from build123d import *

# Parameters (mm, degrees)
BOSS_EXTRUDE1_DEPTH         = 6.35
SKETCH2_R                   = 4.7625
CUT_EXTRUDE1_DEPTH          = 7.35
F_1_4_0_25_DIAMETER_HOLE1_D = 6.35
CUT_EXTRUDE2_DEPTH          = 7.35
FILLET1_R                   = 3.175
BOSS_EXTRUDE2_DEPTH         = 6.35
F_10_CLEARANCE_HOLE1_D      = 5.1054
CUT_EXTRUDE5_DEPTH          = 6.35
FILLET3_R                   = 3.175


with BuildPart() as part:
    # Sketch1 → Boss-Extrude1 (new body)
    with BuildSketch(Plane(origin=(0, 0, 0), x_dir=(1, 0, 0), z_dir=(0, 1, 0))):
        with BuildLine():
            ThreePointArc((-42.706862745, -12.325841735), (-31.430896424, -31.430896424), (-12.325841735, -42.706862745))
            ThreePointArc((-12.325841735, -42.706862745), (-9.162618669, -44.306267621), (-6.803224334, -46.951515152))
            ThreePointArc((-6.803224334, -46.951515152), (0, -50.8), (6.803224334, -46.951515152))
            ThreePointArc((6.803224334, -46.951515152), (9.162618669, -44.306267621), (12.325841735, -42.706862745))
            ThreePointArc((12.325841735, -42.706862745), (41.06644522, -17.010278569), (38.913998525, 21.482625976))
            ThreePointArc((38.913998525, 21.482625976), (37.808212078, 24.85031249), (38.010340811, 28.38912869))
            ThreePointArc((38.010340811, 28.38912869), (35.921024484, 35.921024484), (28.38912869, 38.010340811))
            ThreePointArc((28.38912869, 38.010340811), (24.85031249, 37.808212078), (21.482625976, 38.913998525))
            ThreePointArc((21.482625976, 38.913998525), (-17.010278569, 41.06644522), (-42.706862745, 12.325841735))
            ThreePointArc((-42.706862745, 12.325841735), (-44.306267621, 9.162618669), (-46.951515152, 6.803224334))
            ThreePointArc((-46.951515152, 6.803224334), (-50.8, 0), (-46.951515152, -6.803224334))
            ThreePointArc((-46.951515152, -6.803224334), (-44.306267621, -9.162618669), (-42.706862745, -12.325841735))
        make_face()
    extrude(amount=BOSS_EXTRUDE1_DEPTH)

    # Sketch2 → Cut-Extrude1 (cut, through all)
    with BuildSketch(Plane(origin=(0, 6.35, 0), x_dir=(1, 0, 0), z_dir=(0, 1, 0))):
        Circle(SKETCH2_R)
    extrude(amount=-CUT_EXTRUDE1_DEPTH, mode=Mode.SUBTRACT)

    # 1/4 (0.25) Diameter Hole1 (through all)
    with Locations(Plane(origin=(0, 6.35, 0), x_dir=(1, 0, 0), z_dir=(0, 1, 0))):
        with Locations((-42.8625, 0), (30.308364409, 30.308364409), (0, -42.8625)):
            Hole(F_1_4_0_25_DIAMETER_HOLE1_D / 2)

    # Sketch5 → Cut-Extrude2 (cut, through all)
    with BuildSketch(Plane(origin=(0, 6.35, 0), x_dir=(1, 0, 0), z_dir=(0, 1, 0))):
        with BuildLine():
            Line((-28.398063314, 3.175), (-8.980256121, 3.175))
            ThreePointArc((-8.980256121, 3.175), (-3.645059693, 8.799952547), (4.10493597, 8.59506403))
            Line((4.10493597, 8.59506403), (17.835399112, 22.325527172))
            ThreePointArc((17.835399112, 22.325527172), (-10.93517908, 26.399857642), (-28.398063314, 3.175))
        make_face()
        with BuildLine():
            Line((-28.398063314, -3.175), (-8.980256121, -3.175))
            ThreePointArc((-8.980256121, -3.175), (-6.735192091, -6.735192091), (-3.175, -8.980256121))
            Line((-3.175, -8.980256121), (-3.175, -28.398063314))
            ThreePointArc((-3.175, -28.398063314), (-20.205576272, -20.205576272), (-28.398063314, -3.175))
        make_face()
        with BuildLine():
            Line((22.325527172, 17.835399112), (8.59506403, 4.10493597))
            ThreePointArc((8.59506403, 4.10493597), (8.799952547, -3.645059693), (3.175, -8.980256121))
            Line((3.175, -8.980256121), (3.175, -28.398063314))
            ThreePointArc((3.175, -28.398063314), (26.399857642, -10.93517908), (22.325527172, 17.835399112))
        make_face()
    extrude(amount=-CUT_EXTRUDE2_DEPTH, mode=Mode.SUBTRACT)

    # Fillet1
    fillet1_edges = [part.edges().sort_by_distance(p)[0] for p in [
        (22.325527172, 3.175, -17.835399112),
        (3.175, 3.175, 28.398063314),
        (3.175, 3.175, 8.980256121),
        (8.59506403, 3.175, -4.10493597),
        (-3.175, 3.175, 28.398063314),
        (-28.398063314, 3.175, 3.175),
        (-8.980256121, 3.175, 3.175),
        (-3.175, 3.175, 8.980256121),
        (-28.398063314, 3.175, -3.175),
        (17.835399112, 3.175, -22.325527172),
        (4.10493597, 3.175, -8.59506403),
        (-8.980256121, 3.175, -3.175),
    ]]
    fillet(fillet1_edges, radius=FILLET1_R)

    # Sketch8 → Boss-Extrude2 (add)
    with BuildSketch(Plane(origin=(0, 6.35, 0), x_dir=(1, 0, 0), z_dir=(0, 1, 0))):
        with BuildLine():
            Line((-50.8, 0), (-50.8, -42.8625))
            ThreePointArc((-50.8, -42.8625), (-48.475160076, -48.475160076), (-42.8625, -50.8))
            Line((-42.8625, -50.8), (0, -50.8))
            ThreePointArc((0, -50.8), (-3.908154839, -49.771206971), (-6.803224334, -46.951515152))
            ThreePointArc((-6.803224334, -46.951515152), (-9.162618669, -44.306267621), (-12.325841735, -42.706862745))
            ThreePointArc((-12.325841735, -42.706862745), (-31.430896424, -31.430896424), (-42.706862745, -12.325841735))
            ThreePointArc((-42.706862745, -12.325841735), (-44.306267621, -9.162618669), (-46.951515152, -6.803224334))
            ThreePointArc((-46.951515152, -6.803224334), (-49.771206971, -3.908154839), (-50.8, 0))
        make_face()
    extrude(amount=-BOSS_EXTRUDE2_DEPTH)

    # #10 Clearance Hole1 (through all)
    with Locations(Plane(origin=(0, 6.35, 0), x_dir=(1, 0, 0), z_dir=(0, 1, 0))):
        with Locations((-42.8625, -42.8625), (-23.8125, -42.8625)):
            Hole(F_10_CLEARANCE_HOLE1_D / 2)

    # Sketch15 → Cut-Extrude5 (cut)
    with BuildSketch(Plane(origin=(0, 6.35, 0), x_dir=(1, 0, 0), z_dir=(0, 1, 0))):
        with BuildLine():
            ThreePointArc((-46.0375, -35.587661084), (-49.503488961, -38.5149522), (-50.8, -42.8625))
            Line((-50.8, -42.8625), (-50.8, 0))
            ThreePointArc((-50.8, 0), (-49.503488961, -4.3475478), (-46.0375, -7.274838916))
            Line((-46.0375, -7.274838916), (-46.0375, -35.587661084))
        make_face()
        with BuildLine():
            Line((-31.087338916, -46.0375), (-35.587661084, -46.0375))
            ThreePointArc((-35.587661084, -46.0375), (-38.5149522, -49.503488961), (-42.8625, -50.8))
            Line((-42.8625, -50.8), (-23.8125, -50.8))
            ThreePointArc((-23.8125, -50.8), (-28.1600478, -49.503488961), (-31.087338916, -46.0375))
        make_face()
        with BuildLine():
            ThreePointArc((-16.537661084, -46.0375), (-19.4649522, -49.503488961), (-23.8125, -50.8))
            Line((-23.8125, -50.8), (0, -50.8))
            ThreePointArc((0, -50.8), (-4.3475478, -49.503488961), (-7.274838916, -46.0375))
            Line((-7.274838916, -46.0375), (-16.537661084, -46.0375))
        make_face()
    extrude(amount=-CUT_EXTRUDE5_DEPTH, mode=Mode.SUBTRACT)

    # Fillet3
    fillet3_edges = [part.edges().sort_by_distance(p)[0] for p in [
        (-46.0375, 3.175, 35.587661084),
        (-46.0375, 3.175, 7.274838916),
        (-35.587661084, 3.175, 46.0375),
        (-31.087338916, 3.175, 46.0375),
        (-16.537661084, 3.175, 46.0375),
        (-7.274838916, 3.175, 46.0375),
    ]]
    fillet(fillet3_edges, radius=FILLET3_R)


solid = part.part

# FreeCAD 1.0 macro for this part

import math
import FreeCAD as App
import Part
import Sketcher
Q = App.Units.Quantity


def edges_at(feature, points):
    """Names of the edges that pass closest to the given points."""
    edges = feature.Shape.Edges
    near = lambda p: min(range(len(edges)), key=lambda i: edges[i].distToShape(Part.Vertex(*p))[0])
    return sorted({f"Edge{near(p) + 1}" for p in points})

doc = App.newDocument("Part")
body = doc.addObject("PartDesign::Body", "Body")

# Sketch on XZ plane
sketch1 = body.newObject("Sketcher::SketchObject", "Sketch")
sketch1.AttachmentSupport = (doc.getObject("XZ_Plane"), [""])
sketch1.MapMode = "FlatFace"
sketch1.addGeometry([
    Part.ArcOfCircle(Part.Circle(App.Vector(0, 0, 0), App.Vector(0, 0, 1), 44), math.radians(106), math.radians(164)),  # 0
    Part.ArcOfCircle(Part.Circle(App.Vector(-15, 52, 0), App.Vector(0, 0, 1), 10), math.radians(-74), math.radians(-31)),  # 1
    Part.ArcOfCircle(Part.Circle(App.Vector(0, 43, 0), App.Vector(0, 0, 1), 8), math.radians(31), math.radians(149)),  # 2
    Part.ArcOfCircle(Part.Circle(App.Vector(15, 52, 0), App.Vector(0, 0, 1), 10), math.radians(-149), math.radians(-106)),  # 3
    Part.ArcOfCircle(Part.Circle(App.Vector(0, 0, 0), App.Vector(0, 0, 1), 44), math.radians(-29), math.radians(74)),  # 4
    Part.ArcOfCircle(Part.Circle(App.Vector(47, -26, 0), App.Vector(0, 0, 1), 10), math.radians(151), math.radians(194)),  # 5
    Part.ArcOfCircle(Part.Circle(App.Vector(30, -30, 0), App.Vector(0, 0, 1), 8), math.radians(-104), math.radians(14)),  # 6
    Part.ArcOfCircle(Part.Circle(App.Vector(26, -47, 0), App.Vector(0, 0, 1), 10), math.radians(76), math.radians(119)),  # 7
    Part.ArcOfCircle(Part.Circle(App.Vector(0, 0, 0), App.Vector(0, 0, 1), 44), math.radians(-164), math.radians(-61)),  # 8
    Part.ArcOfCircle(Part.Circle(App.Vector(-52, -15, 0), App.Vector(0, 0, 1), 10), math.radians(16), math.radians(59)),  # 9
    Part.ArcOfCircle(Part.Circle(App.Vector(-43, 0, 0), App.Vector(0, 0, 1), 8), math.radians(121), math.radians(239)),  # 10
    Part.ArcOfCircle(Part.Circle(App.Vector(-52, 15, 0), App.Vector(0, 0, 1), 10), math.radians(-59), math.radians(-16)),  # 11
], False)
sketch1.addConstraint([
    Sketcher.Constraint("Tangent", 0, 1, 1, 1),
    Sketcher.Constraint("Tangent", 1, 2, 2, 2),
    Sketcher.Constraint("Tangent", 2, 1, 3, 1),
    Sketcher.Constraint("Tangent", 3, 2, 4, 2),
    Sketcher.Constraint("Tangent", 4, 1, 5, 1),
    Sketcher.Constraint("Tangent", 5, 2, 6, 2),
    Sketcher.Constraint("Tangent", 6, 1, 7, 1),
    Sketcher.Constraint("Tangent", 7, 2, 8, 2),
    Sketcher.Constraint("Tangent", 8, 1, 9, 1),
    Sketcher.Constraint("Tangent", 9, 2, 10, 2),
    Sketcher.Constraint("Tangent", 10, 1, 11, 1),
    Sketcher.Constraint("Tangent", 11, 2, 0, 2),
    Sketcher.Constraint("Coincident", 0, 3, -1, 1),
    Sketcher.Constraint("Coincident", 4, 3, -1, 1),
    Sketcher.Constraint("Coincident", 8, 3, -1, 1),
    Sketcher.Constraint("Equal", 1, 3),
    Sketcher.Constraint("Equal", 0, 4),
    Sketcher.Constraint("Equal", 3, 5),
    Sketcher.Constraint("Equal", 2, 6),
    Sketcher.Constraint("Equal", 5, 7),
    Sketcher.Constraint("Equal", 4, 8),
    Sketcher.Constraint("Equal", 7, 9),
    Sketcher.Constraint("Equal", 6, 10),
    Sketcher.Constraint("Equal", 9, 11),
    Sketcher.Constraint("PointOnObject", 2, 3, -2),
    Sketcher.Constraint("PointOnObject", 10, 3, -1),
    Sketcher.Constraint("Radius", 0, Q("1.75 in")),
    Sketcher.Constraint("Radius", 1, Q("0.375 in")),
    Sketcher.Constraint("Radius", 2, Q("0.3125 in")),
    Sketcher.Constraint("DistanceY", -1, 1, 2, 3, Q("1.6875 in")),
    Sketcher.Constraint("DistanceX", 10, 3, -1, 1, Q("1.6875 in")),
    Sketcher.Constraint("DistanceX", -1, 1, 4, 1, Q("38.913999 mm")),
    Sketcher.Constraint("DistanceY", 7, 2, -1, 1, Q("38.913999 mm")),
])
pad1 = body.newObject("PartDesign::Pad", "Pad")
pad1.Profile = sketch1
pad1.Length = Q("0.25 in")
pad1.Reversed = True

# Sketch on XZ plane
sketch2 = body.newObject("Sketcher::SketchObject", "Sketch001")
sketch2.AttachmentSupport = (doc.getObject("XZ_Plane"), [""])
sketch2.MapMode = "FlatFace"
sketch2.AttachmentOffset = App.Placement(App.Vector(0, 0, -0.25 * 25.4), App.Rotation())
sketch2.addGeometry(Part.Circle(App.Vector(0, 0, 0), App.Vector(0, 0, 1), 4.8), False)
sketch2.addConstraint([
    Sketcher.Constraint("Coincident", 0, 3, -1, 1),
    Sketcher.Constraint("Diameter", 0, Q("0.375 in")),
])
pocket1 = body.newObject("PartDesign::Pocket", "Pocket")
pocket1.Profile = sketch2
pocket1.Type = "ThroughAll"
pocket1.Reversed = True

# Sketch on XZ plane
sketch3 = body.newObject("Sketcher::SketchObject", "Sketch002")
sketch3.AttachmentSupport = (doc.getObject("XZ_Plane"), [""])
sketch3.MapMode = "FlatFace"
sketch3.AttachmentOffset = App.Placement(App.Vector(0, 0, -0.25 * 25.4), App.Rotation())
sketch3.addGeometry([
    Part.Circle(App.Vector(-42.9, 0, 0), App.Vector(0, 0, 1), 3.2),
    Part.Circle(App.Vector(30.3, -30.3, 0), App.Vector(0, 0, 1), 3.2),
    Part.Circle(App.Vector(0, 42.9, 0), App.Vector(0, 0, 1), 3.2),
], False)
sketch3.addConstraint([
    Sketcher.Constraint("Equal", 0, 1),
    Sketcher.Constraint("Equal", 1, 2),
    Sketcher.Constraint("PointOnObject", 0, 3, -1),
    Sketcher.Constraint("PointOnObject", 2, 3, -2),
    Sketcher.Constraint("Diameter", 0, Q("0.25 in")),
    Sketcher.Constraint("DistanceX", 0, 3, -1, 1, Q("1.6875 in")),
    Sketcher.Constraint("DistanceY", -1, 1, 2, 3, Q("1.6875 in")),
    Sketcher.Constraint("DistanceX", -1, 1, 1, 3, Q("30.308364 mm")),
    Sketcher.Constraint("DistanceY", 1, 3, -1, 1, Q("30.308364 mm")),
])
doc.recompute()
hole = body.newObject("PartDesign::Hole", "Hole")
hole.Profile = sketch3
hole.ThreadType = "None"
hole.Diameter = Q("0.25 in")
hole.DepthType = "ThroughAll"
hole.Reversed = True

# Sketch on XZ plane
sketch4 = body.newObject("Sketcher::SketchObject", "Sketch003")
sketch4.AttachmentSupport = (doc.getObject("XZ_Plane"), [""])
sketch4.MapMode = "FlatFace"
sketch4.AttachmentOffset = App.Placement(App.Vector(0, 0, -0.25 * 25.4), App.Rotation())
sketch4.addGeometry([
    Part.LineSegment(App.Vector(-28, -3, 0), App.Vector(-9, -3, 0)),  # 0
    Part.ArcOfCircle(Part.Circle(App.Vector(0, 0, 0), App.Vector(0, 0, 1), 10), math.radians(-161), math.radians(-64)),  # 1
    Part.LineSegment(App.Vector(4, -9, 0), App.Vector(18, -22, 0)),  # 2
    Part.ArcOfCircle(Part.Circle(App.Vector(0, 0, 0), App.Vector(0, 0, 1), 29), math.radians(-174), math.radians(-51)),  # 3
    Part.LineSegment(App.Vector(-9, 3, 0), App.Vector(-28, 3, 0)),  # 4
    Part.ArcOfCircle(Part.Circle(App.Vector(0, 0, 0), App.Vector(0, 0, 1), 29), math.radians(96), math.radians(174)),  # 5
    Part.LineSegment(App.Vector(-3, 28, 0), App.Vector(-3, 9, 0)),  # 6
    Part.ArcOfCircle(Part.Circle(App.Vector(0, 0, 0), App.Vector(0, 0, 1), 10), math.radians(109), math.radians(161)),  # 7
    Part.LineSegment(App.Vector(22, -18, 0), App.Vector(9, -4, 0)),  # 8
    Part.ArcOfCircle(Part.Circle(App.Vector(0, 0, 0), App.Vector(0, 0, 1), 10), math.radians(-26), math.radians(71)),  # 9
    Part.LineSegment(App.Vector(3, 9, 0), App.Vector(3, 28, 0)),  # 10
    Part.ArcOfCircle(Part.Circle(App.Vector(0, 0, 0), App.Vector(0, 0, 1), 29), math.radians(-39), math.radians(84)),  # 11
], False)
sketch4.addConstraint([
    Sketcher.Constraint("Coincident", 0, 2, 1, 1),
    Sketcher.Constraint("Coincident", 1, 2, 2, 1),
    Sketcher.Constraint("Coincident", 2, 2, 3, 2),
    Sketcher.Constraint("Coincident", 3, 1, 0, 1),
    Sketcher.Constraint("Coincident", 4, 2, 5, 2),
    Sketcher.Constraint("Coincident", 5, 1, 6, 1),
    Sketcher.Constraint("Coincident", 6, 2, 7, 1),
    Sketcher.Constraint("Coincident", 7, 2, 4, 1),
    Sketcher.Constraint("Coincident", 8, 2, 9, 1),
    Sketcher.Constraint("Coincident", 9, 2, 10, 1),
    Sketcher.Constraint("Coincident", 10, 2, 11, 2),
    Sketcher.Constraint("Coincident", 11, 1, 8, 1),
    Sketcher.Constraint("Horizontal", 0),
    Sketcher.Constraint("Horizontal", 4),
    Sketcher.Constraint("Vertical", 6),
    Sketcher.Constraint("Vertical", 10),
    Sketcher.Constraint("Coincident", 1, 3, -1, 1),
    Sketcher.Constraint("Coincident", 3, 3, -1, 1),
    Sketcher.Constraint("Coincident", 5, 3, -1, 1),
    Sketcher.Constraint("Coincident", 7, 3, -1, 1),
    Sketcher.Constraint("Coincident", 9, 3, -1, 1),
    Sketcher.Constraint("Coincident", 11, 3, -1, 1),
    Sketcher.Constraint("Equal", 3, 5),
    Sketcher.Constraint("Equal", 1, 7),
    Sketcher.Constraint("Equal", 7, 9),
    Sketcher.Constraint("Equal", 5, 11),
    Sketcher.Constraint("Parallel", 2, 8),
    Sketcher.Constraint("Horizontal", 6, 2, 9, 2),
    Sketcher.Constraint("Vertical", 3, 1, 4, 2),
    Sketcher.Constraint("Equal", 4, 6),
    Sketcher.Constraint("Equal", 2, 8),
    Sketcher.Constraint("Angle", 2, Q("-45 deg")),
    Sketcher.Constraint("Radius", 1, Q("0.375 in")),
    Sketcher.Constraint("Radius", 3, Q("1.125 in")),
    Sketcher.Constraint("DistanceY", 3, 1, 4, 2, Q("0.25 in")),
    Sketcher.Constraint("DistanceX", -1, 1, 2, 2, Q("17.835399 mm")),
])
pocket2 = body.newObject("PartDesign::Pocket", "Pocket001")
pocket2.Profile = sketch4
pocket2.Type = "ThroughAll"
pocket2.Reversed = True
doc.recompute()

fillet = body.newObject("PartDesign::Fillet", "Fillet")
fillet.Base = (pocket2, edges_at(pocket2, [
    (22.326, 3.175, -17.835),
    (3.175, 3.175, 28.398),
    (3.175, 3.175, 8.98),
    (8.595, 3.175, -4.105),
    (-3.175, 3.175, 28.398),
    (-28.398, 3.175, 3.175),
    (-8.98, 3.175, 3.175),
    (-3.175, 3.175, 8.98),
    (-28.398, 3.175, -3.175),
    (17.835, 3.175, -22.326),
    (4.105, 3.175, -8.595),
    (-8.98, 3.175, -3.175),
]))
fillet.Radius = Q("0.125 in")

# Sketch on XZ plane
sketch5 = body.newObject("Sketcher::SketchObject", "Sketch004")
sketch5.AttachmentSupport = (doc.getObject("XZ_Plane"), [""])
sketch5.MapMode = "FlatFace"
sketch5.AttachmentOffset = App.Placement(App.Vector(0, 0, -0.25 * 25.4), App.Rotation())
sketch5.addGeometry([
    Part.LineSegment(App.Vector(-51, 0, 0), App.Vector(-51, 43, 0)),  # 0
    Part.ArcOfCircle(Part.Circle(App.Vector(-43, 43, 0), App.Vector(0, 0, 1), 8), math.radians(90), math.radians(180)),  # 1
    Part.LineSegment(App.Vector(-43, 51, 0), App.Vector(0, 51, 0)),  # 2
    Part.ArcOfCircle(Part.Circle(App.Vector(0, 43, 0), App.Vector(0, 0, 1), 8), math.radians(90), math.radians(149)),  # 3
    Part.ArcOfCircle(Part.Circle(App.Vector(-15, 52, 0), App.Vector(0, 0, 1), 10), math.radians(-74), math.radians(-31)),  # 4
    Part.ArcOfCircle(Part.Circle(App.Vector(0, 0, 0), App.Vector(0, 0, 1), 44), math.radians(106), math.radians(164)),  # 5
    Part.ArcOfCircle(Part.Circle(App.Vector(-52, 15, 0), App.Vector(0, 0, 1), 10), math.radians(-59), math.radians(-16)),  # 6
    Part.ArcOfCircle(Part.Circle(App.Vector(-43, 0, 0), App.Vector(0, 0, 1), 8), math.radians(121), math.radians(180)),  # 7
], False)
sketch5.addConstraint([
    Sketcher.Constraint("Tangent", 0, 2, 1, 2),
    Sketcher.Constraint("Tangent", 1, 1, 2, 1),
    Sketcher.Constraint("Tangent", 2, 2, 3, 1),
    Sketcher.Constraint("Tangent", 3, 2, 4, 2),
    Sketcher.Constraint("Tangent", 4, 1, 5, 1),
    Sketcher.Constraint("Tangent", 5, 2, 6, 2),
    Sketcher.Constraint("Tangent", 6, 1, 7, 1),
    Sketcher.Constraint("Tangent", 7, 2, 0, 1),
    Sketcher.Constraint("Vertical", 0),
    Sketcher.Constraint("Horizontal", 2),
    Sketcher.Constraint("Coincident", 5, 3, -1, 1),
    Sketcher.Constraint("Equal", 1, 3),
    Sketcher.Constraint("Equal", 4, 6),
    Sketcher.Constraint("Equal", 3, 7),
    Sketcher.Constraint("PointOnObject", 3, 3, -2),
    Sketcher.Constraint("PointOnObject", 7, 3, -1),
    Sketcher.Constraint("Equal", 2, 0),
    Sketcher.Constraint("Radius", 5, Q("1.75 in")),
    Sketcher.Constraint("DistanceX", 0, 2, -1, 1, Q("2 in")),
    Sketcher.Constraint("Radius", 1, Q("0.3125 in")),
    Sketcher.Constraint("Radius", 4, Q("0.375 in")),
])
pad2 = body.newObject("PartDesign::Pad", "Pad001")
pad2.Profile = sketch5
pad2.Length = Q("0.25 in")

# Sketch on XZ plane
sketch6 = body.newObject("Sketcher::SketchObject", "Sketch005")
sketch6.AttachmentSupport = (doc.getObject("XZ_Plane"), [""])
sketch6.MapMode = "FlatFace"
sketch6.AttachmentOffset = App.Placement(App.Vector(0, 0, -0.25 * 25.4), App.Rotation())
sketch6.addGeometry([
    Part.Circle(App.Vector(-42.9, 42.9, 0), App.Vector(0, 0, 1), 2.6),
    Part.Circle(App.Vector(-23.8, 42.9, 0), App.Vector(0, 0, 1), 2.6),
], False)
sketch6.addConstraint([
    Sketcher.Constraint("Equal", 0, 1),
    Sketcher.Constraint("Horizontal", 0, 3, 1, 3),
    Sketcher.Constraint("Diameter", 0, Q("0.201 in")),
    Sketcher.Constraint("DistanceX", 0, 3, 1, 3, Q("0.75 in")),
    Sketcher.Constraint("DistanceX", 0, 3, -1, 1, Q("1.6875 in")),
    Sketcher.Constraint("DistanceY", -1, 1, 0, 3, Q("1.6875 in")),
])
doc.recompute()
hole2 = body.newObject("PartDesign::Hole", "Hole001")
hole2.Profile = sketch6
hole2.ThreadType = "None"
hole2.Diameter = Q("0.201 in")
hole2.DepthType = "ThroughAll"
hole2.Reversed = True

# Sketch on XZ plane
sketch7 = body.newObject("Sketcher::SketchObject", "Sketch006")
sketch7.AttachmentSupport = (doc.getObject("XZ_Plane"), [""])
sketch7.MapMode = "FlatFace"
sketch7.AttachmentOffset = App.Placement(App.Vector(0, 0, -0.25 * 25.4), App.Rotation())
sketch7.addGeometry([
    Part.ArcOfCircle(Part.Circle(App.Vector(-42.9, 42.9, 0), App.Vector(0, 0, 1), 7.9), math.radians(180), math.radians(246)),  # 0
    Part.LineSegment(App.Vector(-46, 35.6, 0), App.Vector(-46, 7.3, 0)),  # 1
    Part.ArcOfCircle(Part.Circle(App.Vector(-42.9, 0, 0), App.Vector(0, 0, 1), 7.9), math.radians(114), math.radians(180)),  # 2
    Part.LineSegment(App.Vector(-50.8, 0, 0), App.Vector(-50.8, 42.9, 0)),  # 3
    Part.LineSegment(App.Vector(-31.1, 46, 0), App.Vector(-35.6, 46, 0)),  # 4
    Part.ArcOfCircle(Part.Circle(App.Vector(-42.9, 42.9, 0), App.Vector(0, 0, 1), 7.9), math.radians(24), math.radians(90)),  # 5
    Part.LineSegment(App.Vector(-42.9, 50.8, 0), App.Vector(-23.8, 50.8, 0)),  # 6
    Part.ArcOfCircle(Part.Circle(App.Vector(-23.8, 42.9, 0), App.Vector(0, 0, 1), 7.9), math.radians(90), math.radians(156)),  # 7
    Part.ArcOfCircle(Part.Circle(App.Vector(-23.8, 42.9, 0), App.Vector(0, 0, 1), 7.9), math.radians(24), math.radians(90)),  # 8
    Part.LineSegment(App.Vector(-23.8, 50.8, 0), App.Vector(0, 50.8, 0)),  # 9
    Part.ArcOfCircle(Part.Circle(App.Vector(0, 42.9, 0), App.Vector(0, 0, 1), 7.9), math.radians(90), math.radians(156)),  # 10
    Part.LineSegment(App.Vector(-7.3, 46, 0), App.Vector(-16.5, 46, 0)),  # 11
], False)
sketch7.addConstraint([
    Sketcher.Constraint("Coincident", 0, 2, 1, 1),
    Sketcher.Constraint("Coincident", 1, 2, 2, 1),
    Sketcher.Constraint("Tangent", 2, 2, 3, 1),
    Sketcher.Constraint("Tangent", 3, 2, 0, 1),
    Sketcher.Constraint("Coincident", 4, 2, 5, 1),
    Sketcher.Constraint("Tangent", 5, 2, 6, 1),
    Sketcher.Constraint("Tangent", 6, 2, 7, 1),
    Sketcher.Constraint("Coincident", 7, 2, 4, 1),
    Sketcher.Constraint("Tangent", 8, 2, 9, 1),
    Sketcher.Constraint("Tangent", 9, 2, 10, 1),
    Sketcher.Constraint("Coincident", 10, 2, 11, 1),
    Sketcher.Constraint("Coincident", 11, 2, 8, 1),
    Sketcher.Constraint("Vertical", 1),
    Sketcher.Constraint("Vertical", 3),
    Sketcher.Constraint("Horizontal", 4),
    Sketcher.Constraint("Horizontal", 6),
    Sketcher.Constraint("Horizontal", 9),
    Sketcher.Constraint("Horizontal", 11),
    Sketcher.Constraint("Coincident", 5, 3, 0, 3),
    Sketcher.Constraint("Coincident", 8, 3, 7, 3),
    Sketcher.Constraint("Equal", 0, 2),
    Sketcher.Constraint("Equal", 2, 5),
    Sketcher.Constraint("Equal", 5, 7),
    Sketcher.Constraint("Equal", 7, 8),
    Sketcher.Constraint("Equal", 8, 10),
    Sketcher.Constraint("PointOnObject", 2, 3, -1),
    Sketcher.Constraint("PointOnObject", 10, 3, -2),
    Sketcher.Constraint("Horizontal", 7, 2, 10, 2),
    Sketcher.Constraint("DistanceX", 2, 2, -1, 1, Q("2 in")),
    Sketcher.Constraint("DistanceY", -1, 1, 5, 2, Q("2 in")),
    Sketcher.Constraint("Radius", 0, Q("0.3125 in")),
    Sketcher.Constraint("DistanceX", 6, 1, 6, 2, Q("0.75 in")),
    Sketcher.Constraint("DistanceX", 0, 2, -1, 1, Q("1.8125 in")),
    Sketcher.Constraint("DistanceY", -1, 1, 4, 2, Q("1.8125 in")),
])
pocket3 = body.newObject("PartDesign::Pocket", "Pocket002")
pocket3.Profile = sketch7
pocket3.Length = Q("0.25 in")
pocket3.Reversed = True
doc.recompute()

fillet2 = body.newObject("PartDesign::Fillet", "Fillet001")
fillet2.Base = (pocket3, edges_at(pocket3, [
    (-46.038, 3.175, 35.588),
    (-46.038, 3.175, 7.275),
    (-35.588, 3.175, 46.038),
    (-31.087, 3.175, 46.038),
    (-16.538, 3.175, 46.038),
    (-7.275, 3.175, 46.038),
]))
fillet2.Radius = Q("0.125 in")

doc.recompute()
